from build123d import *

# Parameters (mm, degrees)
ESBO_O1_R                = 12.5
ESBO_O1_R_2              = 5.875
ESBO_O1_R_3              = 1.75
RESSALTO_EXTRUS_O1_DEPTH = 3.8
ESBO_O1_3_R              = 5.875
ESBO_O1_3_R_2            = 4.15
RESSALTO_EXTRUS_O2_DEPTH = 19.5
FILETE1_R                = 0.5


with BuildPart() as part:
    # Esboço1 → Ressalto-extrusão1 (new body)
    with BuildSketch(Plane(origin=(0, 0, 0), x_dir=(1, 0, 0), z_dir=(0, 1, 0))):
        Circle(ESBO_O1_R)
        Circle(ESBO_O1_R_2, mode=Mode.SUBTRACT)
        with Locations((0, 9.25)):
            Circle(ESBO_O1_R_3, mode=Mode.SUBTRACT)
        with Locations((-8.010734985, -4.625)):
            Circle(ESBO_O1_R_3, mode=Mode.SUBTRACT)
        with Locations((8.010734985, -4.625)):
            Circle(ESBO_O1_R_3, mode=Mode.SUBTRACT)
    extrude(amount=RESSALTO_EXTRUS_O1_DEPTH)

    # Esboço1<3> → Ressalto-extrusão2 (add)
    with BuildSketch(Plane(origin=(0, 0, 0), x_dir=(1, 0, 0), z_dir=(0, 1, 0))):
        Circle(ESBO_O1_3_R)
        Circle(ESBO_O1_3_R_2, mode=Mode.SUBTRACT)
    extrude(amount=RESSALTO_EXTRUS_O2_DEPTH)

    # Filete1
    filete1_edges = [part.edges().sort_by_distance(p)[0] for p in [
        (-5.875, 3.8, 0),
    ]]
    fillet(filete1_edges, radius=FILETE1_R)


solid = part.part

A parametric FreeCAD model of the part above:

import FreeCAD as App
import Part
import Sketcher


def edges_at(feature, points):
    """Names of the edges that pass closest to the given points."""
    edges = feature.Shape.Edges
    near = lambda p: min(range(len(edges)), key=lambda i: edges[i].distToShape(Part.Vertex(*p))[0])
    return sorted({f"Edge{near(p) + 1}" for p in points})

doc = App.newDocument("Part")
body = doc.addObject("PartDesign::Body", "Body")

# Sketch on XZ plane
sketch1 = body.newObject("Sketcher::SketchObject", "Sketch")
sketch1.AttachmentSupport = (doc.getObject("XZ_Plane"), [""])
sketch1.MapMode = "FlatFace"
sketch1.addGeometry([
    Part.Circle(App.Vector(0, 0, 0), App.Vector(0, 0, 1), 12.5),  # 0
    Part.Circle(App.Vector(-8, 4.6, 0), App.Vector(0, 0, 1), 1.8),  # 1
    Part.Circle(App.Vector(8, 4.6, 0), App.Vector(0, 0, 1), 1.8),  # 2
    Part.Circle(App.Vector(0, 0, 0), App.Vector(0, 0, 1), 5.9),  # 3
    Part.Circle(App.Vector(0, -9.2, 0), App.Vector(0, 0, 1), 1.8),  # 4
], False)
sketch1.addConstraint([
    Sketcher.Constraint("Coincident", 0, 3, -1, 1),
    Sketcher.Constraint("Coincident", 3, 3, -1, 1),
    Sketcher.Constraint("Equal", 1, 2),
    Sketcher.Constraint("Equal", 2, 4),
    Sketcher.Constraint("Symmetric", 1, 3, 2, 3, -2),
    Sketcher.Constraint("PointOnObject", 4, 3, -2),
    Sketcher.Constraint("Diameter", 0, 25.0),
    Sketcher.Constraint("Diameter", 1, 3.5),
    Sketcher.Constraint("Diameter", 3, 11.75),
    Sketcher.Constraint("DistanceY", 4, 3, -1, 1, 9.25),
    Sketcher.Constraint("DistanceY", -1, 1, 1, 3, 4.625),
    Sketcher.Constraint("DistanceX", 1, 3, 2, 3, 16.02147),
])
pad1 = body.newObject("PartDesign::Pad", "Pad")
pad1.Profile = sketch1
pad1.Length = 3.8
pad1.Reversed = True

# Sketch on XZ plane
sketch2 = body.newObject("Sketcher::SketchObject", "Sketch001")
sketch2.AttachmentSupport = (doc.getObject("XZ_Plane"), [""])
sketch2.MapMode = "FlatFace"
sketch2.addGeometry([
    Part.Circle(App.Vector(0, 0, 0), App.Vector(0, 0, 1), 5.9),
    Part.Circle(App.Vector(0, 0, 0), App.Vector(0, 0, 1), 4.2),
], False)
sketch2.addConstraint([
    Sketcher.Constraint("Coincident", 0, 3, -1, 1),
    Sketcher.Constraint("Coincident", 1, 3, -1, 1),
    Sketcher.Constraint("Diameter", 1, 8.3),
    Sketcher.Constraint("Diameter", 0, 11.75),
])
pad2 = body.newObject("PartDesign::Pad", "Pad001")
pad2.Profile = sketch2
pad2.Length = 19.5
pad2.Reversed = True
doc.recompute()

fillet = body.newObject("PartDesign::Fillet", "Fillet")
fillet.Base = (pad2, edges_at(pad2, [(-5.875, 3.8, 0)]))
fillet.Radius = 0.5

doc.recompute()
